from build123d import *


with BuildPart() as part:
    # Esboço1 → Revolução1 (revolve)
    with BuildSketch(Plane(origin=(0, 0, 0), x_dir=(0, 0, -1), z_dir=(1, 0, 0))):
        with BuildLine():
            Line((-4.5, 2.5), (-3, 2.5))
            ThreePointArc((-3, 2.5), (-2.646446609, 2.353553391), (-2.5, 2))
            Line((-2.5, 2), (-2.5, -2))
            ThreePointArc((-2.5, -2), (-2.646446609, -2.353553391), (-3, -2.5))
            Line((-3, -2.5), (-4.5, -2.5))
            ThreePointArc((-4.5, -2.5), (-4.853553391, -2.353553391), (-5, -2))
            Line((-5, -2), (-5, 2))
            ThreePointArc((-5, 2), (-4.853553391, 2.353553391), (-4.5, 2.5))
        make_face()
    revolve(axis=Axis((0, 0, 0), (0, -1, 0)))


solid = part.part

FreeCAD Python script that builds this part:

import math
import FreeCAD as App
import Part
import Sketcher

doc = App.newDocument("Part")
body = doc.addObject("PartDesign::Body", "Body")

sketch1 = body.newObject("Sketcher::SketchObject", "Sketch")
sketch1.AttachmentSupport = (doc.getObject("YZ_Plane"), [""])
sketch1.MapMode = "FlatFace"
sketch1.addGeometry([
    Part.LineSegment(App.Vector(2.5, 3, 0), App.Vector(2.5, 4.5, 0)),
    Part.ArcOfCircle(Part.Circle(App.Vector(2, 4.5, 0), App.Vector(0, 0, 1), 0.5), math.radians(0), math.radians(90)),
    Part.LineSegment(App.Vector(2, 5, 0), App.Vector(-2, 5, 0)),
    Part.ArcOfCircle(Part.Circle(App.Vector(-2, 4.5, 0), App.Vector(0, 0, 1), 0.5), math.radians(90), math.radians(180)),
    Part.LineSegment(App.Vector(-2.5, 4.5, 0), App.Vector(-2.5, 3, 0)),
    Part.ArcOfCircle(Part.Circle(App.Vector(-2, 3, 0), App.Vector(0, 0, 1), 0.5), math.radians(180), math.radians(270)),
    Part.LineSegment(App.Vector(-2, 2.5, 0), App.Vector(2, 2.5, 0)),
    Part.ArcOfCircle(Part.Circle(App.Vector(2, 3, 0), App.Vector(0, 0, 1), 0.5), math.radians(-90), math.radians(0)),
], False)
sketch1.addConstraint([
    Sketcher.Constraint("Tangent", 0, 2, 1, 1),
    Sketcher.Constraint("Tangent", 1, 2, 2, 1),
    Sketcher.Constraint("Tangent", 2, 2, 3, 1),
    Sketcher.Constraint("Tangent", 3, 2, 4, 1),
    Sketcher.Constraint("Tangent", 4, 2, 5, 1),
    Sketcher.Constraint("Tangent", 5, 2, 6, 1),
    Sketcher.Constraint("Tangent", 6, 2, 7, 1),
    Sketcher.Constraint("Tangent", 7, 2, 0, 1),
    Sketcher.Constraint("Vertical", 0),
    Sketcher.Constraint("Horizontal", 2),
    Sketcher.Constraint("Vertical", 4),
    Sketcher.Constraint("Horizontal", 6),
    Sketcher.Constraint("Equal", 1, 3),
    Sketcher.Constraint("Equal", 3, 5),
    Sketcher.Constraint("Equal", 5, 7),
    Sketcher.Constraint("Radius", 1, 0.5),
    Sketcher.Constraint("DistanceX", 2, 2, 2, 1, 4.0),
    Sketcher.Constraint("DistanceY", 0, 1, 0, 2, 1.5),
    Sketcher.Constraint("DistanceX", -1, 1, 1, 3, 2.0),
    Sketcher.Constraint("DistanceY", -1, 1, 5, 3, 3.0),
])
revolution = body.newObject("PartDesign::Revolution", "Revolution")
revolution.Profile = sketch1
revolution.ReferenceAxis = (sketch1, ["H_Axis"])
revolution.Angle = 360

doc.recompute()
